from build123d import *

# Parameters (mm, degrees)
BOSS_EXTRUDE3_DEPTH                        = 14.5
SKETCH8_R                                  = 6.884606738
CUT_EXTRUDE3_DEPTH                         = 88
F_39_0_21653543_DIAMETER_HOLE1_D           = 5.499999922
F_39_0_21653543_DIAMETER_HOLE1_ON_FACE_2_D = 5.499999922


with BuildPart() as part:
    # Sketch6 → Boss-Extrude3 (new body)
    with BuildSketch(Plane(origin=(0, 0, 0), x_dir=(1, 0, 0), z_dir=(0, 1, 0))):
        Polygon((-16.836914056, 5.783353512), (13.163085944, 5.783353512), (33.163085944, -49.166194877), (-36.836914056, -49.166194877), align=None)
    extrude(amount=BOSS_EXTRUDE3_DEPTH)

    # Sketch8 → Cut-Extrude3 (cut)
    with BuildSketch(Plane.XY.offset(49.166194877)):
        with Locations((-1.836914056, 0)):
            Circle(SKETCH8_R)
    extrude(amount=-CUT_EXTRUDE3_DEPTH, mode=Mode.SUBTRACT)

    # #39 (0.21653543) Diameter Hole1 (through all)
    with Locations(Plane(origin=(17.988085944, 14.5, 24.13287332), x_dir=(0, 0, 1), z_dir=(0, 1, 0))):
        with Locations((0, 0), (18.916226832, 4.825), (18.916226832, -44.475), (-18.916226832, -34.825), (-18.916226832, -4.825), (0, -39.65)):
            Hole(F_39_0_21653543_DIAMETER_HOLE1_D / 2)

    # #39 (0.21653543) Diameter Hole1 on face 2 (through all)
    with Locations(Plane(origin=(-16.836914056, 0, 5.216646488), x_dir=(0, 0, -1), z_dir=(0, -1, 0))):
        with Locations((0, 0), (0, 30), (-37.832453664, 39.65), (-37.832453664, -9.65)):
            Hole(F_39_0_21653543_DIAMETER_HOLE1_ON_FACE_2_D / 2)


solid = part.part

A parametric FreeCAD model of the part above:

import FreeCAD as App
import Part
import Sketcher
Q = App.Units.Quantity


def add_polygon(sketch, points):
    """Adds a closed chain of lines whose ends are joined by coincident constraints."""
    first, n = sketch.GeometryCount, len(points)
    for a, b in zip(points, points[1:] + points[:1]):
        sketch.addGeometry(Part.LineSegment(App.Vector(*a, 0), App.Vector(*b, 0)), False)
    for i in range(n):
        sketch.addConstraint(Sketcher.Constraint("Coincident", first + i, 2, first + (i + 1) % n, 1))

doc = App.newDocument("Part")
body = doc.addObject("PartDesign::Body", "Body")

# Sketch on XZ plane
sketch1 = body.newObject("Sketcher::SketchObject", "Sketch")
sketch1.AttachmentSupport = (doc.getObject("XZ_Plane"), [""])
sketch1.MapMode = "FlatFace"
add_polygon(sketch1, [(13, -6), (-17, -6), (-37, 49), (33, 49)])  # lines 0-3
sketch1.addConstraint(Sketcher.Constraint("Horizontal", 0))
sketch1.addConstraint(Sketcher.Constraint("Horizontal", 2))
sketch1.addConstraint(Sketcher.Constraint("Equal", 1, 3))
sketch1.addConstraint(Sketcher.Constraint("DistanceX", 0, 2, 0, 1, Q("30 mm")))
sketch1.addConstraint(Sketcher.Constraint("DistanceX", 2, 1, 2, 2, Q("70 mm")))
sketch1.addConstraint(Sketcher.Constraint("Angle", 1, Q("110 deg")))
sketch1.addConstraint(Sketcher.Constraint("DistanceX", 0, 2, -1, 1, Q("16.836914 mm")))
sketch1.addConstraint(Sketcher.Constraint("DistanceY", 0, 2, -1, 1, Q("5.783354 mm")))
pad1 = body.newObject("PartDesign::Pad", "Pad")
pad1.Profile = sketch1
pad1.Length = 14.5
pad1.Reversed = True

# Sketch on XY plane
sketch2 = body.newObject("Sketcher::SketchObject", "Sketch001")
sketch2.AttachmentSupport = (doc.getObject("XY_Plane"), [""])
sketch2.MapMode = "FlatFace"
sketch2.AttachmentOffset = App.Placement(App.Vector(0, 0, 49.166195), App.Rotation())
sketch2.addGeometry(Part.Circle(App.Vector(-2, 0, 0), App.Vector(0, 0, 1), 7), False)
sketch2.addConstraint(Sketcher.Constraint("PointOnObject", 0, 3, -1))
sketch2.addConstraint(Sketcher.Constraint("Diameter", 0, Q("13.769213 mm")))
sketch2.addConstraint(Sketcher.Constraint("DistanceX", 0, 3, -1, 1, Q("1.836914 mm")))
pocket1 = body.newObject("PartDesign::Pocket", "Pocket")
pocket1.Profile = sketch2
pocket1.Length = 88

# Sketch on XZ plane
sketch3 = body.newObject("Sketcher::SketchObject", "Sketch002")
sketch3.AttachmentSupport = (doc.getObject("XZ_Plane"), [""])
sketch3.MapMode = "FlatFace"
sketch3.AttachmentOffset = App.Placement(App.Vector(0, 0, -14.5), App.Rotation())
sketch3.addGeometry(Part.Circle(App.Vector(18, 24.1, 0), App.Vector(0, 0, 1), 2.7), False)
sketch3.addGeometry(Part.Circle(App.Vector(22.8, 43, 0), App.Vector(0, 0, 1), 2.7), False)
sketch3.addGeometry(Part.Circle(App.Vector(-26.5, 43, 0), App.Vector(0, 0, 1), 2.7), False)
sketch3.addGeometry(Part.Circle(App.Vector(-16.8, 5.2, 0), App.Vector(0, 0, 1), 2.7), False)
sketch3.addGeometry(Part.Circle(App.Vector(13.2, 5.2, 0), App.Vector(0, 0, 1), 2.7), False)
sketch3.addGeometry(Part.Circle(App.Vector(-21.7, 24.1, 0), App.Vector(0, 0, 1), 2.7), False)
sketch3.addConstraint(Sketcher.Constraint("Equal", 0, 1))
sketch3.addConstraint(Sketcher.Constraint("Equal", 1, 2))
sketch3.addConstraint(Sketcher.Constraint("Equal", 2, 3))
sketch3.addConstraint(Sketcher.Constraint("Equal", 3, 4))
sketch3.addConstraint(Sketcher.Constraint("Equal", 4, 5))
sketch3.addConstraint(Sketcher.Constraint("Horizontal", 1, 3, 2, 3))
sketch3.addConstraint(Sketcher.Constraint("Horizontal", 3, 3, 4, 3))
sketch3.addConstraint(Sketcher.Constraint("Horizontal", 0, 3, 5, 3))
sketch3.addConstraint(Sketcher.Constraint("Diameter", 0, Q("5.5 mm")))
sketch3.addConstraint(Sketcher.Constraint("DistanceX", 3, 3, 4, 3, Q("30 mm")))
sketch3.addConstraint(Sketcher.Constraint("DistanceX", 2, 3, 1, 3, Q("49.3 mm")))
sketch3.addConstraint(Sketcher.Constraint("DistanceX", 2, 3, 3, 3, Q("9.65 mm")))
sketch3.addConstraint(Sketcher.Constraint("DistanceX", 5, 3, 0, 3, Q("39.65 mm")))
sketch3.addConstraint(Sketcher.Constraint("DistanceX", 0, 3, 1, 3, Q("4.825 mm")))
sketch3.addConstraint(Sketcher.Constraint("DistanceY", -1, 1, 1, 3, Q("43.0491 mm")))
sketch3.addConstraint(Sketcher.Constraint("DistanceX", -1, 1, 0, 3, Q("17.988086 mm")))
sketch3.addConstraint(Sketcher.Constraint("DistanceY", -1, 1, 0, 3, Q("24.132873 mm")))
sketch3.addConstraint(Sketcher.Constraint("DistanceY", -1, 1, 3, 3, Q("5.216646 mm")))
doc.recompute()
hole = body.newObject("PartDesign::Hole", "Hole")
hole.Profile = sketch3
hole.ThreadType = "None"
hole.Diameter = 5.5
hole.DepthType = "ThroughAll"
hole.Reversed = True

# Sketch on XZ plane
sketch4 = body.newObject("Sketcher::SketchObject", "Sketch003")
sketch4.AttachmentSupport = (doc.getObject("XZ_Plane"), [""])
sketch4.MapMode = "FlatFace"
sketch4.addGeometry(Part.Circle(App.Vector(-16.8, 5.2, 0), App.Vector(0, 0, 1), 2.7), False)
sketch4.addGeometry(Part.Circle(App.Vector(13.2, 5.2, 0), App.Vector(0, 0, 1), 2.7), False)
sketch4.addGeometry(Part.Circle(App.Vector(22.8, 43, 0), App.Vector(0, 0, 1), 2.7), False)
sketch4.addGeometry(Part.Circle(App.Vector(-26.5, 43, 0), App.Vector(0, 0, 1), 2.7), False)
sketch4.addConstraint(Sketcher.Constraint("Equal", 0, 1))
sketch4.addConstraint(Sketcher.Constraint("Equal", 1, 2))
sketch4.addConstraint(Sketcher.Constraint("Equal", 2, 3))
sketch4.addConstraint(Sketcher.Constraint("Horizontal", 0, 3, 1, 3))
sketch4.addConstraint(Sketcher.Constraint("Horizontal", 2, 3, 3, 3))
sketch4.addConstraint(Sketcher.Constraint("Diameter", 0, Q("5.5 mm")))
sketch4.addConstraint(Sketcher.Constraint("DistanceX", 0, 3, 1, 3, Q("30 mm")))
sketch4.addConstraint(Sketcher.Constraint("DistanceX", 3, 3, 2, 3, Q("49.3 mm")))
sketch4.addConstraint(Sketcher.Constraint("DistanceX", 1, 3, 2, 3, Q("9.65 mm")))
sketch4.addConstraint(Sketcher.Constraint("DistanceY", -1, 1, 2, 3, Q("43.0491 mm")))
sketch4.addConstraint(Sketcher.Constraint("DistanceX", 0, 3, -1, 1, Q("16.836914 mm")))
sketch4.addConstraint(Sketcher.Constraint("DistanceY", -1, 1, 0, 3, Q("5.216646 mm")))
doc.recompute()
hole2 = body.newObject("PartDesign::Hole", "Hole001")
hole2.Profile = sketch4
hole2.ThreadType = "None"
hole2.Diameter = 5.5
hole2.DepthType = "ThroughAll"

doc.recompute()
